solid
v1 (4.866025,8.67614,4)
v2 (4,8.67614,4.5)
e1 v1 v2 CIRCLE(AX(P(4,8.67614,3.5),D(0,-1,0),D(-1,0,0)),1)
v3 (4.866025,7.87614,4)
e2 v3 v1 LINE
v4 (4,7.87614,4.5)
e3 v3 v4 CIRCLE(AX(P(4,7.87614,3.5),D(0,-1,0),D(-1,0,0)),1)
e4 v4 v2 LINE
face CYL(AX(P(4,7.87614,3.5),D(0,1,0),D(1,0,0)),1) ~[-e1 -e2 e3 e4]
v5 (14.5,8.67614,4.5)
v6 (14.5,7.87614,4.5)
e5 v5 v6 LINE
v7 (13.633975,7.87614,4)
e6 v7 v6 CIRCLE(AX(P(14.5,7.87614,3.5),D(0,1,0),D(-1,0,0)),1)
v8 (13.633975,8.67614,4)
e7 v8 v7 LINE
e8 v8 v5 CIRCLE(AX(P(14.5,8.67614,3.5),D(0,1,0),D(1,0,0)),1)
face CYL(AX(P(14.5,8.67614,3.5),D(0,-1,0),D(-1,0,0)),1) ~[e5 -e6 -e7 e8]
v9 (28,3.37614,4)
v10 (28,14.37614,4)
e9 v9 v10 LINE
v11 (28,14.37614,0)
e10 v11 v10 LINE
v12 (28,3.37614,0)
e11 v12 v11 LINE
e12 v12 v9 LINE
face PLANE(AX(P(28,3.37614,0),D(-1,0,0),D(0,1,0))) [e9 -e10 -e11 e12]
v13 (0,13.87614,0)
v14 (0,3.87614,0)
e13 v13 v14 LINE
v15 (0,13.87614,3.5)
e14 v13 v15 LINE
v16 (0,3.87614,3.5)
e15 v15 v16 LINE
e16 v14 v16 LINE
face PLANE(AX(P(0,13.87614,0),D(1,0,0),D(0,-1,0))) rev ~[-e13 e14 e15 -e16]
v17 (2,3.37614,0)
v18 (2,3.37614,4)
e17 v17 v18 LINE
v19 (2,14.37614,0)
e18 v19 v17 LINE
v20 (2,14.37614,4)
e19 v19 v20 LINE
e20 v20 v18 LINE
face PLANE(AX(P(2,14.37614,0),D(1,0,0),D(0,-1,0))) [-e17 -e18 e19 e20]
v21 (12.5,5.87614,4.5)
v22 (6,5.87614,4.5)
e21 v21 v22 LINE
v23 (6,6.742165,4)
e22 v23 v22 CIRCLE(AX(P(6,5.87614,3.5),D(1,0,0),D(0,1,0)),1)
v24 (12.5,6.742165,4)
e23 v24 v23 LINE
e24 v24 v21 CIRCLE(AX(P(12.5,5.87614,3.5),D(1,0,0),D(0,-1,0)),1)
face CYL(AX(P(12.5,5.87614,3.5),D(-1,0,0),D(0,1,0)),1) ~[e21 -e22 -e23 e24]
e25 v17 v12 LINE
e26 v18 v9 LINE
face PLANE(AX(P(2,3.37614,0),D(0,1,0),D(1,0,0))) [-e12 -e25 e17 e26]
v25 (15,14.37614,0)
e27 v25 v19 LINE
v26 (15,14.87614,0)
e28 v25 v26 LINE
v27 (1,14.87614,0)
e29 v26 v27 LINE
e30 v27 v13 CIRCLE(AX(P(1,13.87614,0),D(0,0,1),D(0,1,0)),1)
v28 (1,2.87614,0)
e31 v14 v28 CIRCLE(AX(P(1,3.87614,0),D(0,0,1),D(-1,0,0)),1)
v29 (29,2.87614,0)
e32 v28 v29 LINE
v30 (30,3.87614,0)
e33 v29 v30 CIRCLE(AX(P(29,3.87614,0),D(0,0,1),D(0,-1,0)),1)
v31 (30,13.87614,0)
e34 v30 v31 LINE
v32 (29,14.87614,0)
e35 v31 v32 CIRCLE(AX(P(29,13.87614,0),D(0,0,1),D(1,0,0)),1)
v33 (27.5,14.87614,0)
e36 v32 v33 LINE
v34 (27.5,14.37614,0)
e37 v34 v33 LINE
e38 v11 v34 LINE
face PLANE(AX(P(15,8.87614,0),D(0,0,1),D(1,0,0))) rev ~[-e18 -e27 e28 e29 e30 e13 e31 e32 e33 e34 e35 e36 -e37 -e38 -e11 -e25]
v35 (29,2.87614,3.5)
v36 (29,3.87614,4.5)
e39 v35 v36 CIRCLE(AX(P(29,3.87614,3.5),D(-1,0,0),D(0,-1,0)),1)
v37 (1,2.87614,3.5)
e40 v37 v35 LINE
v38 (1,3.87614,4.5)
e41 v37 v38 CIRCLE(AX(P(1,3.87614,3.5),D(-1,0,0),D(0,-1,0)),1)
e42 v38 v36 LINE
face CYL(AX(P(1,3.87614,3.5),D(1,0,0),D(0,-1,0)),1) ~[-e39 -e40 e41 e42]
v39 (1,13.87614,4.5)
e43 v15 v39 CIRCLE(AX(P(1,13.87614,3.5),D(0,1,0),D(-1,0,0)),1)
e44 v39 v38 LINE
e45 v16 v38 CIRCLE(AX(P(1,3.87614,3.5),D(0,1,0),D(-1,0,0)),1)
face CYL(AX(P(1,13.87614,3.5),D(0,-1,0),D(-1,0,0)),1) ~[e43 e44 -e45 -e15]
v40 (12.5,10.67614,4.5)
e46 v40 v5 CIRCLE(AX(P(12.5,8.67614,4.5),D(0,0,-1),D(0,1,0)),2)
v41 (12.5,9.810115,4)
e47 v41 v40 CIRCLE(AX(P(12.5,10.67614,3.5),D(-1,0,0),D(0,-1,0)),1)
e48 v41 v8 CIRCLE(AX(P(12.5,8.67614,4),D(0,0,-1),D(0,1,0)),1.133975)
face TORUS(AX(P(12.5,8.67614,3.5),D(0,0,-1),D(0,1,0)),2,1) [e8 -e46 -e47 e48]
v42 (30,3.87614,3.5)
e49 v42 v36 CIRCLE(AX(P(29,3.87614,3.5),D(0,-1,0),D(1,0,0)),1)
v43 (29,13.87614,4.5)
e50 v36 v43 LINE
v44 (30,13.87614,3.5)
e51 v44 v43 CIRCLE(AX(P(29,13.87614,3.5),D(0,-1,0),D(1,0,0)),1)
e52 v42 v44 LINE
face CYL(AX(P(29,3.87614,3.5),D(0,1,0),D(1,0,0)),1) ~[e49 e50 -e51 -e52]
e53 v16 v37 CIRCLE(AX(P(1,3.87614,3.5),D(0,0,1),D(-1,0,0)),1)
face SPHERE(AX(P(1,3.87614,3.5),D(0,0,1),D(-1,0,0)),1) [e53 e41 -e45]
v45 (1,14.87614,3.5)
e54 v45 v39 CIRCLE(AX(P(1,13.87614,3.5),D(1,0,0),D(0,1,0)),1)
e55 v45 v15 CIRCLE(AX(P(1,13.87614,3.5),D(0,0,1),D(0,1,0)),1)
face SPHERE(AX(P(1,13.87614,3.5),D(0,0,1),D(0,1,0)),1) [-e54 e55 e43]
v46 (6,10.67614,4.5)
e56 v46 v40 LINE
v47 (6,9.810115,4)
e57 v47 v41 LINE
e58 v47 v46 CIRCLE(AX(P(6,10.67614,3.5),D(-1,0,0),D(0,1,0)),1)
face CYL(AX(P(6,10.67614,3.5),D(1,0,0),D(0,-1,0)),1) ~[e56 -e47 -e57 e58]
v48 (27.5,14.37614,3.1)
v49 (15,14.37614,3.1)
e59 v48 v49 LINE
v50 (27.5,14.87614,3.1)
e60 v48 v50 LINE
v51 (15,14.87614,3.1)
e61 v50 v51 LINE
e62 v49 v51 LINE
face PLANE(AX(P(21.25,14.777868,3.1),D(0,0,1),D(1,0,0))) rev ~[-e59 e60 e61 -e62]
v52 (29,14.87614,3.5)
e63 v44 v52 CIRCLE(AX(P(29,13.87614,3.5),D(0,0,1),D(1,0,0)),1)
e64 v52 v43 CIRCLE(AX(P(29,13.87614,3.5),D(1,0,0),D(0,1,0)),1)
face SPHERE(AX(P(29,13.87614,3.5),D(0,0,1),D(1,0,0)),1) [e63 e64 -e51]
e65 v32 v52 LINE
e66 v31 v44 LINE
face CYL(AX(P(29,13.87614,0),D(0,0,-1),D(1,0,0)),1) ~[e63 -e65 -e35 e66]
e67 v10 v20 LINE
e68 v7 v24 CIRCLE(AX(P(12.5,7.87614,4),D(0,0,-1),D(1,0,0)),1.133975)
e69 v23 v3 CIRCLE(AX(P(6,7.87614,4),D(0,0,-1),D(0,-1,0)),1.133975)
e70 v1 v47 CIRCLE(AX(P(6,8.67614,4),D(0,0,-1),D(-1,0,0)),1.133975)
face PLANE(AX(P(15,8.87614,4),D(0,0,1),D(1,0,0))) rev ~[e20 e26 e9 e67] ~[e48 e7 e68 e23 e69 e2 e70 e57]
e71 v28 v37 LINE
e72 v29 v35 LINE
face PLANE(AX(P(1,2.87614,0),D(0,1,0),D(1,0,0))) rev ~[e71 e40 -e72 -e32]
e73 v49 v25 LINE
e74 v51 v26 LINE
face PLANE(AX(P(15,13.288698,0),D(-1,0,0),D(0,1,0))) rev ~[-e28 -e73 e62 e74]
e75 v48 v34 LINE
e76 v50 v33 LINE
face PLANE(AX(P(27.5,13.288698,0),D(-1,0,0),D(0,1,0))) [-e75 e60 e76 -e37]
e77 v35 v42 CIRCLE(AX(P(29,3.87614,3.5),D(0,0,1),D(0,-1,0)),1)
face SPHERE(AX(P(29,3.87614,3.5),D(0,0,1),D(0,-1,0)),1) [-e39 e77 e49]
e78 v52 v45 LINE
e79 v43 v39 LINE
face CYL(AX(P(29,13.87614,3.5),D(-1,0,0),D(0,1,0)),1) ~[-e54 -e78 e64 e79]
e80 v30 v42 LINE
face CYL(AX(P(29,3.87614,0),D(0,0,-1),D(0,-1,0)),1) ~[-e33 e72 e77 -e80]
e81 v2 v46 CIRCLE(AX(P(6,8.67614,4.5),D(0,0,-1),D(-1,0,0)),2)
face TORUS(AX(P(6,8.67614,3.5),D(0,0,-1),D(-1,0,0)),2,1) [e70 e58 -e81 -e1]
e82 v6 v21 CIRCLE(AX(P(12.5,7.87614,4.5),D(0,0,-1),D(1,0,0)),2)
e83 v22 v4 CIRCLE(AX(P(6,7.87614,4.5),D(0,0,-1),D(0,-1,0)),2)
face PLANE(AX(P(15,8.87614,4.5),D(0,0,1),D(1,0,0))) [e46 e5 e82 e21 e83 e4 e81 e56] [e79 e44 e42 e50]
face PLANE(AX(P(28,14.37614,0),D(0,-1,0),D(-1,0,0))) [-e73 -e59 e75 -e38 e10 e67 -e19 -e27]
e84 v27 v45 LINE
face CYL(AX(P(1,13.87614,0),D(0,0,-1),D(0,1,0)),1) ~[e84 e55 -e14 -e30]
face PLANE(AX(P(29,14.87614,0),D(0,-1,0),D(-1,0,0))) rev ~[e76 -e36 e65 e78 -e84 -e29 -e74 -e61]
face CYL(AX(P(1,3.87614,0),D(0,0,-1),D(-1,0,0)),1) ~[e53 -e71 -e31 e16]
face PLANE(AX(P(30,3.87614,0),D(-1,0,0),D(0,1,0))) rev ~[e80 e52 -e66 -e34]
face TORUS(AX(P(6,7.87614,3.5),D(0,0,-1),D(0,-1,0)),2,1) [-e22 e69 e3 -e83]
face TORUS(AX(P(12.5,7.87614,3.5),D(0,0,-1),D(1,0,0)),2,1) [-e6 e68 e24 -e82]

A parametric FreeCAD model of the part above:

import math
import FreeCAD as App
import Part
import Sketcher
from FreeCAD import Vector


def edges_at(feature, points):
    """Names of the edges that pass closest to the given points."""
    edges = feature.Shape.Edges
    near = lambda p: min(range(len(edges)), key=lambda i: edges[i].distToShape(Part.Vertex(*p))[0])
    return sorted({f"Edge{near(p) + 1}" for p in points})

doc = App.newDocument("Part")
body = doc.addObject("PartDesign::Body", "Body")

# Sketch on XY plane
sketch1 = body.newObject("Sketcher::SketchObject", "Sketch")
sketch1.AttachmentSupport = (doc.getObject("XY_Plane"), [""])
sketch1.MapMode = "FlatFace"
sketch1.addGeometry(Part.ArcOfCircle(Part.Circle(Vector(1, 3.9, 0), Vector(0, 0, 1), 1), math.radians(180), math.radians(270)), False)
sketch1.addGeometry(Part.LineSegment(Vector(1, 2.9, 0), Vector(29, 2.9, 0)), False)
sketch1.addGeometry(Part.ArcOfCircle(Part.Circle(Vector(29, 3.9, 0), Vector(0, 0, 1), 1), math.radians(-90), math.radians(0)), False)
sketch1.addGeometry(Part.LineSegment(Vector(30, 3.9, 0), Vector(30, 13.9, 0)), False)
sketch1.addGeometry(Part.ArcOfCircle(Part.Circle(Vector(29, 13.9, 0), Vector(0, 0, 1), 1), math.radians(0), math.radians(90)), False)
sketch1.addGeometry(Part.LineSegment(Vector(29, 14.9, 0), Vector(1, 14.9, 0)), False)
sketch1.addGeometry(Part.ArcOfCircle(Part.Circle(Vector(1, 13.9, 0), Vector(0, 0, 1), 1), math.radians(90), math.radians(180)), False)
sketch1.addGeometry(Part.LineSegment(Vector(0, 13.9, 0), Vector(0, 3.9, 0)), False)
sketch1.addGeometry(Part.LineSegment(Vector(5, 7.9, 0), Vector(5, 8.7, 0)), False)
sketch1.addGeometry(Part.ArcOfCircle(Part.Circle(Vector(6, 8.7, 0), Vector(0, 0, 1), 1), math.radians(90), math.radians(180)), False)
sketch1.addGeometry(Part.LineSegment(Vector(6, 9.7, 0), Vector(12.5, 9.7, 0)), False)
sketch1.addGeometry(Part.ArcOfCircle(Part.Circle(Vector(12.5, 8.7, 0), Vector(0, 0, 1), 1), math.radians(0), math.radians(90)), False)
sketch1.addGeometry(Part.LineSegment(Vector(13.5, 8.7, 0), Vector(13.5, 7.9, 0)), False)
sketch1.addGeometry(Part.ArcOfCircle(Part.Circle(Vector(12.5, 7.9, 0), Vector(0, 0, 1), 1), math.radians(-90), math.radians(0)), False)
sketch1.addGeometry(Part.LineSegment(Vector(12.5, 6.9, 0), Vector(6, 6.9, 0)), False)
sketch1.addGeometry(Part.ArcOfCircle(Part.Circle(Vector(6, 7.9, 0), Vector(0, 0, 1), 1), math.radians(180), math.radians(270)), False)
sketch1.addConstraint(Sketcher.Constraint("Tangent", 0, 2, 1, 1))
sketch1.addConstraint(Sketcher.Constraint("Tangent", 1, 2, 2, 1))
sketch1.addConstraint(Sketcher.Constraint("Tangent", 2, 2, 3, 1))
sketch1.addConstraint(Sketcher.Constraint("Tangent", 3, 2, 4, 1))
sketch1.addConstraint(Sketcher.Constraint("Tangent", 4, 2, 5, 1))
sketch1.addConstraint(Sketcher.Constraint("Tangent", 5, 2, 6, 1))
sketch1.addConstraint(Sketcher.Constraint("Tangent", 6, 2, 7, 1))
sketch1.addConstraint(Sketcher.Constraint("Tangent", 7, 2, 0, 1))
sketch1.addConstraint(Sketcher.Constraint("Tangent", 8, 2, 9, 2))
sketch1.addConstraint(Sketcher.Constraint("Tangent", 9, 1, 10, 1))
sketch1.addConstraint(Sketcher.Constraint("Tangent", 10, 2, 11, 2))
sketch1.addConstraint(Sketcher.Constraint("Tangent", 11, 1, 12, 1))
sketch1.addConstraint(Sketcher.Constraint("Tangent", 12, 2, 13, 2))
sketch1.addConstraint(Sketcher.Constraint("Tangent", 13, 1, 14, 1))
sketch1.addConstraint(Sketcher.Constraint("Tangent", 14, 2, 15, 2))
sketch1.addConstraint(Sketcher.Constraint("Tangent", 15, 1, 8, 1))
sketch1.addConstraint(Sketcher.Constraint("Horizontal", 1))
sketch1.addConstraint(Sketcher.Constraint("Vertical", 3))
sketch1.addConstraint(Sketcher.Constraint("Horizontal", 5))
sketch1.addConstraint(Sketcher.Constraint("Vertical", 7))
sketch1.addConstraint(Sketcher.Constraint("Vertical", 8))
sketch1.addConstraint(Sketcher.Constraint("Horizontal", 10))
sketch1.addConstraint(Sketcher.Constraint("Vertical", 12))
sketch1.addConstraint(Sketcher.Constraint("Horizontal", 14))
sketch1.addConstraint(Sketcher.Constraint("Equal", 0, 2))
sketch1.addConstraint(Sketcher.Constraint("Equal", 2, 4))
sketch1.addConstraint(Sketcher.Constraint("Equal", 4, 6))
sketch1.addConstraint(Sketcher.Constraint("Equal", 6, 9))
sketch1.addConstraint(Sketcher.Constraint("Equal", 9, 11))
sketch1.addConstraint(Sketcher.Constraint("Equal", 11, 13))
sketch1.addConstraint(Sketcher.Constraint("Equal", 13, 15))
sketch1.addConstraint(Sketcher.Constraint("PointOnObject", 6, 2, -2))
sketch1.addConstraint(Sketcher.Constraint("Radius", 0, 1.0))
sketch1.addConstraint(Sketcher.Constraint("DistanceX", 1, 1, 1, 2, 28.0))
sketch1.addConstraint(Sketcher.Constraint("DistanceY", 3, 1, 3, 2, 10.0))
sketch1.addConstraint(Sketcher.Constraint("DistanceX", 10, 1, 10, 2, 6.5))
sketch1.addConstraint(Sketcher.Constraint("DistanceY", 8, 1, 8, 2, 0.8))
sketch1.addConstraint(Sketcher.Constraint("DistanceX", -1, 1, 9, 3, 6.0))
sketch1.addConstraint(Sketcher.Constraint("DistanceY", 0, 3, 13, 3, 4.0))
sketch1.addConstraint(Sketcher.Constraint("DistanceY", -1, 1, 0, 3, 3.87614))
pad1 = body.newObject("PartDesign::Pad", "Pad")
pad1.Profile = sketch1
pad1.Length = 4.5
doc.recompute()

fillet = body.newObject("PartDesign::Fillet", "Fillet")
fillet.Base = (pad1, edges_at(pad1, [
    (0.293, 3.169, 4.5),
    (15, 2.876, 4.5),
    (29.707, 3.169, 4.5),
    (30, 8.876, 4.5),
    (29.707, 14.583, 4.5),
    (15, 14.876, 4.5),
    (0.293, 14.583, 4.5),
    (0, 8.876, 4.5),
    (5.293, 9.383, 4.5),
    (9.25, 9.676, 4.5),
    (13.207, 9.383, 4.5),
    (13.5, 8.276, 4.5),
    (13.207, 7.169, 4.5),
    (9.25, 6.876, 4.5),
    (5.293, 7.169, 4.5),
    (5, 8.276, 4.5),
]))
fillet.Radius = 1

# Sketch on XY plane
sketch2 = body.newObject("Sketcher::SketchObject", "Sketch001")
sketch2.AttachmentSupport = (doc.getObject("XY_Plane"), [""])
sketch2.MapMode = "FlatFace"
sketch2.addGeometry(Part.LineSegment(Vector(28, 3, 0), Vector(28, 14, 0)), False)
sketch2.addGeometry(Part.LineSegment(Vector(28, 14, 0), Vector(2, 14, 0)), False)
sketch2.addGeometry(Part.LineSegment(Vector(2, 14, 0), Vector(2, 3, 0)), False)
sketch2.addGeometry(Part.LineSegment(Vector(2, 3, 0), Vector(28, 3, 0)), False)
sketch2.addConstraint(Sketcher.Constraint("Coincident", 0, 2, 1, 1))
sketch2.addConstraint(Sketcher.Constraint("Coincident", 1, 2, 2, 1))
sketch2.addConstraint(Sketcher.Constraint("Coincident", 2, 2, 3, 1))
sketch2.addConstraint(Sketcher.Constraint("Coincident", 3, 2, 0, 1))
sketch2.addConstraint(Sketcher.Constraint("Vertical", 0))
sketch2.addConstraint(Sketcher.Constraint("Horizontal", 1))
sketch2.addConstraint(Sketcher.Constraint("Vertical", 2))
sketch2.addConstraint(Sketcher.Constraint("Horizontal", 3))
sketch2.addConstraint(Sketcher.Constraint("DistanceX", 1, 2, 1, 1, 26.0))
sketch2.addConstraint(Sketcher.Constraint("DistanceY", 0, 1, 0, 2, 11.0))
sketch2.addConstraint(Sketcher.Constraint("DistanceX", -1, 1, 0, 2, 28.0))
sketch2.addConstraint(Sketcher.Constraint("DistanceY", -1, 1, 0, 2, 14.37614))
pocket1 = body.newObject("PartDesign::Pocket", "Pocket")
pocket1.Profile = sketch2
pocket1.Length = 4
pocket1.Reversed = True

# Sketch on XY plane
sketch3 = body.newObject("Sketcher::SketchObject", "Sketch002")
sketch3.AttachmentSupport = (doc.getObject("XY_Plane"), [""])
sketch3.MapMode = "FlatFace"
sketch3.addGeometry(Part.LineSegment(Vector(15, 16.3, 0), Vector(15, 13.3, 0)), False)
sketch3.addGeometry(Part.LineSegment(Vector(15, 13.3, 0), Vector(27.5, 13.3, 0)), False)
sketch3.addGeometry(Part.LineSegment(Vector(27.5, 13.3, 0), Vector(27.5, 16.3, 0)), False)
sketch3.addGeometry(Part.LineSegment(Vector(27.5, 16.3, 0), Vector(15, 16.3, 0)), False)
sketch3.addConstraint(Sketcher.Constraint("Coincident", 0, 2, 1, 1))
sketch3.addConstraint(Sketcher.Constraint("Coincident", 1, 2, 2, 1))
sketch3.addConstraint(Sketcher.Constraint("Coincident", 2, 2, 3, 1))
sketch3.addConstraint(Sketcher.Constraint("Coincident", 3, 2, 0, 1))
sketch3.addConstraint(Sketcher.Constraint("Vertical", 0))
sketch3.addConstraint(Sketcher.Constraint("Horizontal", 1))
sketch3.addConstraint(Sketcher.Constraint("Vertical", 2))
sketch3.addConstraint(Sketcher.Constraint("Horizontal", 3))
sketch3.addConstraint(Sketcher.Constraint("DistanceX", 1, 1, 1, 2, 12.5))
sketch3.addConstraint(Sketcher.Constraint("DistanceX", -1, 1, 0, 2, 15.0))
sketch3.addConstraint(Sketcher.Constraint("DistanceY", 0, 2, 0, 1, 2.978339))
sketch3.addConstraint(Sketcher.Constraint("DistanceY", -1, 1, 0, 2, 13.288698))
pocket2 = body.newObject("PartDesign::Pocket", "Pocket001")
pocket2.Profile = sketch3
pocket2.Length = 3.1
pocket2.Reversed = True

doc.recompute()
